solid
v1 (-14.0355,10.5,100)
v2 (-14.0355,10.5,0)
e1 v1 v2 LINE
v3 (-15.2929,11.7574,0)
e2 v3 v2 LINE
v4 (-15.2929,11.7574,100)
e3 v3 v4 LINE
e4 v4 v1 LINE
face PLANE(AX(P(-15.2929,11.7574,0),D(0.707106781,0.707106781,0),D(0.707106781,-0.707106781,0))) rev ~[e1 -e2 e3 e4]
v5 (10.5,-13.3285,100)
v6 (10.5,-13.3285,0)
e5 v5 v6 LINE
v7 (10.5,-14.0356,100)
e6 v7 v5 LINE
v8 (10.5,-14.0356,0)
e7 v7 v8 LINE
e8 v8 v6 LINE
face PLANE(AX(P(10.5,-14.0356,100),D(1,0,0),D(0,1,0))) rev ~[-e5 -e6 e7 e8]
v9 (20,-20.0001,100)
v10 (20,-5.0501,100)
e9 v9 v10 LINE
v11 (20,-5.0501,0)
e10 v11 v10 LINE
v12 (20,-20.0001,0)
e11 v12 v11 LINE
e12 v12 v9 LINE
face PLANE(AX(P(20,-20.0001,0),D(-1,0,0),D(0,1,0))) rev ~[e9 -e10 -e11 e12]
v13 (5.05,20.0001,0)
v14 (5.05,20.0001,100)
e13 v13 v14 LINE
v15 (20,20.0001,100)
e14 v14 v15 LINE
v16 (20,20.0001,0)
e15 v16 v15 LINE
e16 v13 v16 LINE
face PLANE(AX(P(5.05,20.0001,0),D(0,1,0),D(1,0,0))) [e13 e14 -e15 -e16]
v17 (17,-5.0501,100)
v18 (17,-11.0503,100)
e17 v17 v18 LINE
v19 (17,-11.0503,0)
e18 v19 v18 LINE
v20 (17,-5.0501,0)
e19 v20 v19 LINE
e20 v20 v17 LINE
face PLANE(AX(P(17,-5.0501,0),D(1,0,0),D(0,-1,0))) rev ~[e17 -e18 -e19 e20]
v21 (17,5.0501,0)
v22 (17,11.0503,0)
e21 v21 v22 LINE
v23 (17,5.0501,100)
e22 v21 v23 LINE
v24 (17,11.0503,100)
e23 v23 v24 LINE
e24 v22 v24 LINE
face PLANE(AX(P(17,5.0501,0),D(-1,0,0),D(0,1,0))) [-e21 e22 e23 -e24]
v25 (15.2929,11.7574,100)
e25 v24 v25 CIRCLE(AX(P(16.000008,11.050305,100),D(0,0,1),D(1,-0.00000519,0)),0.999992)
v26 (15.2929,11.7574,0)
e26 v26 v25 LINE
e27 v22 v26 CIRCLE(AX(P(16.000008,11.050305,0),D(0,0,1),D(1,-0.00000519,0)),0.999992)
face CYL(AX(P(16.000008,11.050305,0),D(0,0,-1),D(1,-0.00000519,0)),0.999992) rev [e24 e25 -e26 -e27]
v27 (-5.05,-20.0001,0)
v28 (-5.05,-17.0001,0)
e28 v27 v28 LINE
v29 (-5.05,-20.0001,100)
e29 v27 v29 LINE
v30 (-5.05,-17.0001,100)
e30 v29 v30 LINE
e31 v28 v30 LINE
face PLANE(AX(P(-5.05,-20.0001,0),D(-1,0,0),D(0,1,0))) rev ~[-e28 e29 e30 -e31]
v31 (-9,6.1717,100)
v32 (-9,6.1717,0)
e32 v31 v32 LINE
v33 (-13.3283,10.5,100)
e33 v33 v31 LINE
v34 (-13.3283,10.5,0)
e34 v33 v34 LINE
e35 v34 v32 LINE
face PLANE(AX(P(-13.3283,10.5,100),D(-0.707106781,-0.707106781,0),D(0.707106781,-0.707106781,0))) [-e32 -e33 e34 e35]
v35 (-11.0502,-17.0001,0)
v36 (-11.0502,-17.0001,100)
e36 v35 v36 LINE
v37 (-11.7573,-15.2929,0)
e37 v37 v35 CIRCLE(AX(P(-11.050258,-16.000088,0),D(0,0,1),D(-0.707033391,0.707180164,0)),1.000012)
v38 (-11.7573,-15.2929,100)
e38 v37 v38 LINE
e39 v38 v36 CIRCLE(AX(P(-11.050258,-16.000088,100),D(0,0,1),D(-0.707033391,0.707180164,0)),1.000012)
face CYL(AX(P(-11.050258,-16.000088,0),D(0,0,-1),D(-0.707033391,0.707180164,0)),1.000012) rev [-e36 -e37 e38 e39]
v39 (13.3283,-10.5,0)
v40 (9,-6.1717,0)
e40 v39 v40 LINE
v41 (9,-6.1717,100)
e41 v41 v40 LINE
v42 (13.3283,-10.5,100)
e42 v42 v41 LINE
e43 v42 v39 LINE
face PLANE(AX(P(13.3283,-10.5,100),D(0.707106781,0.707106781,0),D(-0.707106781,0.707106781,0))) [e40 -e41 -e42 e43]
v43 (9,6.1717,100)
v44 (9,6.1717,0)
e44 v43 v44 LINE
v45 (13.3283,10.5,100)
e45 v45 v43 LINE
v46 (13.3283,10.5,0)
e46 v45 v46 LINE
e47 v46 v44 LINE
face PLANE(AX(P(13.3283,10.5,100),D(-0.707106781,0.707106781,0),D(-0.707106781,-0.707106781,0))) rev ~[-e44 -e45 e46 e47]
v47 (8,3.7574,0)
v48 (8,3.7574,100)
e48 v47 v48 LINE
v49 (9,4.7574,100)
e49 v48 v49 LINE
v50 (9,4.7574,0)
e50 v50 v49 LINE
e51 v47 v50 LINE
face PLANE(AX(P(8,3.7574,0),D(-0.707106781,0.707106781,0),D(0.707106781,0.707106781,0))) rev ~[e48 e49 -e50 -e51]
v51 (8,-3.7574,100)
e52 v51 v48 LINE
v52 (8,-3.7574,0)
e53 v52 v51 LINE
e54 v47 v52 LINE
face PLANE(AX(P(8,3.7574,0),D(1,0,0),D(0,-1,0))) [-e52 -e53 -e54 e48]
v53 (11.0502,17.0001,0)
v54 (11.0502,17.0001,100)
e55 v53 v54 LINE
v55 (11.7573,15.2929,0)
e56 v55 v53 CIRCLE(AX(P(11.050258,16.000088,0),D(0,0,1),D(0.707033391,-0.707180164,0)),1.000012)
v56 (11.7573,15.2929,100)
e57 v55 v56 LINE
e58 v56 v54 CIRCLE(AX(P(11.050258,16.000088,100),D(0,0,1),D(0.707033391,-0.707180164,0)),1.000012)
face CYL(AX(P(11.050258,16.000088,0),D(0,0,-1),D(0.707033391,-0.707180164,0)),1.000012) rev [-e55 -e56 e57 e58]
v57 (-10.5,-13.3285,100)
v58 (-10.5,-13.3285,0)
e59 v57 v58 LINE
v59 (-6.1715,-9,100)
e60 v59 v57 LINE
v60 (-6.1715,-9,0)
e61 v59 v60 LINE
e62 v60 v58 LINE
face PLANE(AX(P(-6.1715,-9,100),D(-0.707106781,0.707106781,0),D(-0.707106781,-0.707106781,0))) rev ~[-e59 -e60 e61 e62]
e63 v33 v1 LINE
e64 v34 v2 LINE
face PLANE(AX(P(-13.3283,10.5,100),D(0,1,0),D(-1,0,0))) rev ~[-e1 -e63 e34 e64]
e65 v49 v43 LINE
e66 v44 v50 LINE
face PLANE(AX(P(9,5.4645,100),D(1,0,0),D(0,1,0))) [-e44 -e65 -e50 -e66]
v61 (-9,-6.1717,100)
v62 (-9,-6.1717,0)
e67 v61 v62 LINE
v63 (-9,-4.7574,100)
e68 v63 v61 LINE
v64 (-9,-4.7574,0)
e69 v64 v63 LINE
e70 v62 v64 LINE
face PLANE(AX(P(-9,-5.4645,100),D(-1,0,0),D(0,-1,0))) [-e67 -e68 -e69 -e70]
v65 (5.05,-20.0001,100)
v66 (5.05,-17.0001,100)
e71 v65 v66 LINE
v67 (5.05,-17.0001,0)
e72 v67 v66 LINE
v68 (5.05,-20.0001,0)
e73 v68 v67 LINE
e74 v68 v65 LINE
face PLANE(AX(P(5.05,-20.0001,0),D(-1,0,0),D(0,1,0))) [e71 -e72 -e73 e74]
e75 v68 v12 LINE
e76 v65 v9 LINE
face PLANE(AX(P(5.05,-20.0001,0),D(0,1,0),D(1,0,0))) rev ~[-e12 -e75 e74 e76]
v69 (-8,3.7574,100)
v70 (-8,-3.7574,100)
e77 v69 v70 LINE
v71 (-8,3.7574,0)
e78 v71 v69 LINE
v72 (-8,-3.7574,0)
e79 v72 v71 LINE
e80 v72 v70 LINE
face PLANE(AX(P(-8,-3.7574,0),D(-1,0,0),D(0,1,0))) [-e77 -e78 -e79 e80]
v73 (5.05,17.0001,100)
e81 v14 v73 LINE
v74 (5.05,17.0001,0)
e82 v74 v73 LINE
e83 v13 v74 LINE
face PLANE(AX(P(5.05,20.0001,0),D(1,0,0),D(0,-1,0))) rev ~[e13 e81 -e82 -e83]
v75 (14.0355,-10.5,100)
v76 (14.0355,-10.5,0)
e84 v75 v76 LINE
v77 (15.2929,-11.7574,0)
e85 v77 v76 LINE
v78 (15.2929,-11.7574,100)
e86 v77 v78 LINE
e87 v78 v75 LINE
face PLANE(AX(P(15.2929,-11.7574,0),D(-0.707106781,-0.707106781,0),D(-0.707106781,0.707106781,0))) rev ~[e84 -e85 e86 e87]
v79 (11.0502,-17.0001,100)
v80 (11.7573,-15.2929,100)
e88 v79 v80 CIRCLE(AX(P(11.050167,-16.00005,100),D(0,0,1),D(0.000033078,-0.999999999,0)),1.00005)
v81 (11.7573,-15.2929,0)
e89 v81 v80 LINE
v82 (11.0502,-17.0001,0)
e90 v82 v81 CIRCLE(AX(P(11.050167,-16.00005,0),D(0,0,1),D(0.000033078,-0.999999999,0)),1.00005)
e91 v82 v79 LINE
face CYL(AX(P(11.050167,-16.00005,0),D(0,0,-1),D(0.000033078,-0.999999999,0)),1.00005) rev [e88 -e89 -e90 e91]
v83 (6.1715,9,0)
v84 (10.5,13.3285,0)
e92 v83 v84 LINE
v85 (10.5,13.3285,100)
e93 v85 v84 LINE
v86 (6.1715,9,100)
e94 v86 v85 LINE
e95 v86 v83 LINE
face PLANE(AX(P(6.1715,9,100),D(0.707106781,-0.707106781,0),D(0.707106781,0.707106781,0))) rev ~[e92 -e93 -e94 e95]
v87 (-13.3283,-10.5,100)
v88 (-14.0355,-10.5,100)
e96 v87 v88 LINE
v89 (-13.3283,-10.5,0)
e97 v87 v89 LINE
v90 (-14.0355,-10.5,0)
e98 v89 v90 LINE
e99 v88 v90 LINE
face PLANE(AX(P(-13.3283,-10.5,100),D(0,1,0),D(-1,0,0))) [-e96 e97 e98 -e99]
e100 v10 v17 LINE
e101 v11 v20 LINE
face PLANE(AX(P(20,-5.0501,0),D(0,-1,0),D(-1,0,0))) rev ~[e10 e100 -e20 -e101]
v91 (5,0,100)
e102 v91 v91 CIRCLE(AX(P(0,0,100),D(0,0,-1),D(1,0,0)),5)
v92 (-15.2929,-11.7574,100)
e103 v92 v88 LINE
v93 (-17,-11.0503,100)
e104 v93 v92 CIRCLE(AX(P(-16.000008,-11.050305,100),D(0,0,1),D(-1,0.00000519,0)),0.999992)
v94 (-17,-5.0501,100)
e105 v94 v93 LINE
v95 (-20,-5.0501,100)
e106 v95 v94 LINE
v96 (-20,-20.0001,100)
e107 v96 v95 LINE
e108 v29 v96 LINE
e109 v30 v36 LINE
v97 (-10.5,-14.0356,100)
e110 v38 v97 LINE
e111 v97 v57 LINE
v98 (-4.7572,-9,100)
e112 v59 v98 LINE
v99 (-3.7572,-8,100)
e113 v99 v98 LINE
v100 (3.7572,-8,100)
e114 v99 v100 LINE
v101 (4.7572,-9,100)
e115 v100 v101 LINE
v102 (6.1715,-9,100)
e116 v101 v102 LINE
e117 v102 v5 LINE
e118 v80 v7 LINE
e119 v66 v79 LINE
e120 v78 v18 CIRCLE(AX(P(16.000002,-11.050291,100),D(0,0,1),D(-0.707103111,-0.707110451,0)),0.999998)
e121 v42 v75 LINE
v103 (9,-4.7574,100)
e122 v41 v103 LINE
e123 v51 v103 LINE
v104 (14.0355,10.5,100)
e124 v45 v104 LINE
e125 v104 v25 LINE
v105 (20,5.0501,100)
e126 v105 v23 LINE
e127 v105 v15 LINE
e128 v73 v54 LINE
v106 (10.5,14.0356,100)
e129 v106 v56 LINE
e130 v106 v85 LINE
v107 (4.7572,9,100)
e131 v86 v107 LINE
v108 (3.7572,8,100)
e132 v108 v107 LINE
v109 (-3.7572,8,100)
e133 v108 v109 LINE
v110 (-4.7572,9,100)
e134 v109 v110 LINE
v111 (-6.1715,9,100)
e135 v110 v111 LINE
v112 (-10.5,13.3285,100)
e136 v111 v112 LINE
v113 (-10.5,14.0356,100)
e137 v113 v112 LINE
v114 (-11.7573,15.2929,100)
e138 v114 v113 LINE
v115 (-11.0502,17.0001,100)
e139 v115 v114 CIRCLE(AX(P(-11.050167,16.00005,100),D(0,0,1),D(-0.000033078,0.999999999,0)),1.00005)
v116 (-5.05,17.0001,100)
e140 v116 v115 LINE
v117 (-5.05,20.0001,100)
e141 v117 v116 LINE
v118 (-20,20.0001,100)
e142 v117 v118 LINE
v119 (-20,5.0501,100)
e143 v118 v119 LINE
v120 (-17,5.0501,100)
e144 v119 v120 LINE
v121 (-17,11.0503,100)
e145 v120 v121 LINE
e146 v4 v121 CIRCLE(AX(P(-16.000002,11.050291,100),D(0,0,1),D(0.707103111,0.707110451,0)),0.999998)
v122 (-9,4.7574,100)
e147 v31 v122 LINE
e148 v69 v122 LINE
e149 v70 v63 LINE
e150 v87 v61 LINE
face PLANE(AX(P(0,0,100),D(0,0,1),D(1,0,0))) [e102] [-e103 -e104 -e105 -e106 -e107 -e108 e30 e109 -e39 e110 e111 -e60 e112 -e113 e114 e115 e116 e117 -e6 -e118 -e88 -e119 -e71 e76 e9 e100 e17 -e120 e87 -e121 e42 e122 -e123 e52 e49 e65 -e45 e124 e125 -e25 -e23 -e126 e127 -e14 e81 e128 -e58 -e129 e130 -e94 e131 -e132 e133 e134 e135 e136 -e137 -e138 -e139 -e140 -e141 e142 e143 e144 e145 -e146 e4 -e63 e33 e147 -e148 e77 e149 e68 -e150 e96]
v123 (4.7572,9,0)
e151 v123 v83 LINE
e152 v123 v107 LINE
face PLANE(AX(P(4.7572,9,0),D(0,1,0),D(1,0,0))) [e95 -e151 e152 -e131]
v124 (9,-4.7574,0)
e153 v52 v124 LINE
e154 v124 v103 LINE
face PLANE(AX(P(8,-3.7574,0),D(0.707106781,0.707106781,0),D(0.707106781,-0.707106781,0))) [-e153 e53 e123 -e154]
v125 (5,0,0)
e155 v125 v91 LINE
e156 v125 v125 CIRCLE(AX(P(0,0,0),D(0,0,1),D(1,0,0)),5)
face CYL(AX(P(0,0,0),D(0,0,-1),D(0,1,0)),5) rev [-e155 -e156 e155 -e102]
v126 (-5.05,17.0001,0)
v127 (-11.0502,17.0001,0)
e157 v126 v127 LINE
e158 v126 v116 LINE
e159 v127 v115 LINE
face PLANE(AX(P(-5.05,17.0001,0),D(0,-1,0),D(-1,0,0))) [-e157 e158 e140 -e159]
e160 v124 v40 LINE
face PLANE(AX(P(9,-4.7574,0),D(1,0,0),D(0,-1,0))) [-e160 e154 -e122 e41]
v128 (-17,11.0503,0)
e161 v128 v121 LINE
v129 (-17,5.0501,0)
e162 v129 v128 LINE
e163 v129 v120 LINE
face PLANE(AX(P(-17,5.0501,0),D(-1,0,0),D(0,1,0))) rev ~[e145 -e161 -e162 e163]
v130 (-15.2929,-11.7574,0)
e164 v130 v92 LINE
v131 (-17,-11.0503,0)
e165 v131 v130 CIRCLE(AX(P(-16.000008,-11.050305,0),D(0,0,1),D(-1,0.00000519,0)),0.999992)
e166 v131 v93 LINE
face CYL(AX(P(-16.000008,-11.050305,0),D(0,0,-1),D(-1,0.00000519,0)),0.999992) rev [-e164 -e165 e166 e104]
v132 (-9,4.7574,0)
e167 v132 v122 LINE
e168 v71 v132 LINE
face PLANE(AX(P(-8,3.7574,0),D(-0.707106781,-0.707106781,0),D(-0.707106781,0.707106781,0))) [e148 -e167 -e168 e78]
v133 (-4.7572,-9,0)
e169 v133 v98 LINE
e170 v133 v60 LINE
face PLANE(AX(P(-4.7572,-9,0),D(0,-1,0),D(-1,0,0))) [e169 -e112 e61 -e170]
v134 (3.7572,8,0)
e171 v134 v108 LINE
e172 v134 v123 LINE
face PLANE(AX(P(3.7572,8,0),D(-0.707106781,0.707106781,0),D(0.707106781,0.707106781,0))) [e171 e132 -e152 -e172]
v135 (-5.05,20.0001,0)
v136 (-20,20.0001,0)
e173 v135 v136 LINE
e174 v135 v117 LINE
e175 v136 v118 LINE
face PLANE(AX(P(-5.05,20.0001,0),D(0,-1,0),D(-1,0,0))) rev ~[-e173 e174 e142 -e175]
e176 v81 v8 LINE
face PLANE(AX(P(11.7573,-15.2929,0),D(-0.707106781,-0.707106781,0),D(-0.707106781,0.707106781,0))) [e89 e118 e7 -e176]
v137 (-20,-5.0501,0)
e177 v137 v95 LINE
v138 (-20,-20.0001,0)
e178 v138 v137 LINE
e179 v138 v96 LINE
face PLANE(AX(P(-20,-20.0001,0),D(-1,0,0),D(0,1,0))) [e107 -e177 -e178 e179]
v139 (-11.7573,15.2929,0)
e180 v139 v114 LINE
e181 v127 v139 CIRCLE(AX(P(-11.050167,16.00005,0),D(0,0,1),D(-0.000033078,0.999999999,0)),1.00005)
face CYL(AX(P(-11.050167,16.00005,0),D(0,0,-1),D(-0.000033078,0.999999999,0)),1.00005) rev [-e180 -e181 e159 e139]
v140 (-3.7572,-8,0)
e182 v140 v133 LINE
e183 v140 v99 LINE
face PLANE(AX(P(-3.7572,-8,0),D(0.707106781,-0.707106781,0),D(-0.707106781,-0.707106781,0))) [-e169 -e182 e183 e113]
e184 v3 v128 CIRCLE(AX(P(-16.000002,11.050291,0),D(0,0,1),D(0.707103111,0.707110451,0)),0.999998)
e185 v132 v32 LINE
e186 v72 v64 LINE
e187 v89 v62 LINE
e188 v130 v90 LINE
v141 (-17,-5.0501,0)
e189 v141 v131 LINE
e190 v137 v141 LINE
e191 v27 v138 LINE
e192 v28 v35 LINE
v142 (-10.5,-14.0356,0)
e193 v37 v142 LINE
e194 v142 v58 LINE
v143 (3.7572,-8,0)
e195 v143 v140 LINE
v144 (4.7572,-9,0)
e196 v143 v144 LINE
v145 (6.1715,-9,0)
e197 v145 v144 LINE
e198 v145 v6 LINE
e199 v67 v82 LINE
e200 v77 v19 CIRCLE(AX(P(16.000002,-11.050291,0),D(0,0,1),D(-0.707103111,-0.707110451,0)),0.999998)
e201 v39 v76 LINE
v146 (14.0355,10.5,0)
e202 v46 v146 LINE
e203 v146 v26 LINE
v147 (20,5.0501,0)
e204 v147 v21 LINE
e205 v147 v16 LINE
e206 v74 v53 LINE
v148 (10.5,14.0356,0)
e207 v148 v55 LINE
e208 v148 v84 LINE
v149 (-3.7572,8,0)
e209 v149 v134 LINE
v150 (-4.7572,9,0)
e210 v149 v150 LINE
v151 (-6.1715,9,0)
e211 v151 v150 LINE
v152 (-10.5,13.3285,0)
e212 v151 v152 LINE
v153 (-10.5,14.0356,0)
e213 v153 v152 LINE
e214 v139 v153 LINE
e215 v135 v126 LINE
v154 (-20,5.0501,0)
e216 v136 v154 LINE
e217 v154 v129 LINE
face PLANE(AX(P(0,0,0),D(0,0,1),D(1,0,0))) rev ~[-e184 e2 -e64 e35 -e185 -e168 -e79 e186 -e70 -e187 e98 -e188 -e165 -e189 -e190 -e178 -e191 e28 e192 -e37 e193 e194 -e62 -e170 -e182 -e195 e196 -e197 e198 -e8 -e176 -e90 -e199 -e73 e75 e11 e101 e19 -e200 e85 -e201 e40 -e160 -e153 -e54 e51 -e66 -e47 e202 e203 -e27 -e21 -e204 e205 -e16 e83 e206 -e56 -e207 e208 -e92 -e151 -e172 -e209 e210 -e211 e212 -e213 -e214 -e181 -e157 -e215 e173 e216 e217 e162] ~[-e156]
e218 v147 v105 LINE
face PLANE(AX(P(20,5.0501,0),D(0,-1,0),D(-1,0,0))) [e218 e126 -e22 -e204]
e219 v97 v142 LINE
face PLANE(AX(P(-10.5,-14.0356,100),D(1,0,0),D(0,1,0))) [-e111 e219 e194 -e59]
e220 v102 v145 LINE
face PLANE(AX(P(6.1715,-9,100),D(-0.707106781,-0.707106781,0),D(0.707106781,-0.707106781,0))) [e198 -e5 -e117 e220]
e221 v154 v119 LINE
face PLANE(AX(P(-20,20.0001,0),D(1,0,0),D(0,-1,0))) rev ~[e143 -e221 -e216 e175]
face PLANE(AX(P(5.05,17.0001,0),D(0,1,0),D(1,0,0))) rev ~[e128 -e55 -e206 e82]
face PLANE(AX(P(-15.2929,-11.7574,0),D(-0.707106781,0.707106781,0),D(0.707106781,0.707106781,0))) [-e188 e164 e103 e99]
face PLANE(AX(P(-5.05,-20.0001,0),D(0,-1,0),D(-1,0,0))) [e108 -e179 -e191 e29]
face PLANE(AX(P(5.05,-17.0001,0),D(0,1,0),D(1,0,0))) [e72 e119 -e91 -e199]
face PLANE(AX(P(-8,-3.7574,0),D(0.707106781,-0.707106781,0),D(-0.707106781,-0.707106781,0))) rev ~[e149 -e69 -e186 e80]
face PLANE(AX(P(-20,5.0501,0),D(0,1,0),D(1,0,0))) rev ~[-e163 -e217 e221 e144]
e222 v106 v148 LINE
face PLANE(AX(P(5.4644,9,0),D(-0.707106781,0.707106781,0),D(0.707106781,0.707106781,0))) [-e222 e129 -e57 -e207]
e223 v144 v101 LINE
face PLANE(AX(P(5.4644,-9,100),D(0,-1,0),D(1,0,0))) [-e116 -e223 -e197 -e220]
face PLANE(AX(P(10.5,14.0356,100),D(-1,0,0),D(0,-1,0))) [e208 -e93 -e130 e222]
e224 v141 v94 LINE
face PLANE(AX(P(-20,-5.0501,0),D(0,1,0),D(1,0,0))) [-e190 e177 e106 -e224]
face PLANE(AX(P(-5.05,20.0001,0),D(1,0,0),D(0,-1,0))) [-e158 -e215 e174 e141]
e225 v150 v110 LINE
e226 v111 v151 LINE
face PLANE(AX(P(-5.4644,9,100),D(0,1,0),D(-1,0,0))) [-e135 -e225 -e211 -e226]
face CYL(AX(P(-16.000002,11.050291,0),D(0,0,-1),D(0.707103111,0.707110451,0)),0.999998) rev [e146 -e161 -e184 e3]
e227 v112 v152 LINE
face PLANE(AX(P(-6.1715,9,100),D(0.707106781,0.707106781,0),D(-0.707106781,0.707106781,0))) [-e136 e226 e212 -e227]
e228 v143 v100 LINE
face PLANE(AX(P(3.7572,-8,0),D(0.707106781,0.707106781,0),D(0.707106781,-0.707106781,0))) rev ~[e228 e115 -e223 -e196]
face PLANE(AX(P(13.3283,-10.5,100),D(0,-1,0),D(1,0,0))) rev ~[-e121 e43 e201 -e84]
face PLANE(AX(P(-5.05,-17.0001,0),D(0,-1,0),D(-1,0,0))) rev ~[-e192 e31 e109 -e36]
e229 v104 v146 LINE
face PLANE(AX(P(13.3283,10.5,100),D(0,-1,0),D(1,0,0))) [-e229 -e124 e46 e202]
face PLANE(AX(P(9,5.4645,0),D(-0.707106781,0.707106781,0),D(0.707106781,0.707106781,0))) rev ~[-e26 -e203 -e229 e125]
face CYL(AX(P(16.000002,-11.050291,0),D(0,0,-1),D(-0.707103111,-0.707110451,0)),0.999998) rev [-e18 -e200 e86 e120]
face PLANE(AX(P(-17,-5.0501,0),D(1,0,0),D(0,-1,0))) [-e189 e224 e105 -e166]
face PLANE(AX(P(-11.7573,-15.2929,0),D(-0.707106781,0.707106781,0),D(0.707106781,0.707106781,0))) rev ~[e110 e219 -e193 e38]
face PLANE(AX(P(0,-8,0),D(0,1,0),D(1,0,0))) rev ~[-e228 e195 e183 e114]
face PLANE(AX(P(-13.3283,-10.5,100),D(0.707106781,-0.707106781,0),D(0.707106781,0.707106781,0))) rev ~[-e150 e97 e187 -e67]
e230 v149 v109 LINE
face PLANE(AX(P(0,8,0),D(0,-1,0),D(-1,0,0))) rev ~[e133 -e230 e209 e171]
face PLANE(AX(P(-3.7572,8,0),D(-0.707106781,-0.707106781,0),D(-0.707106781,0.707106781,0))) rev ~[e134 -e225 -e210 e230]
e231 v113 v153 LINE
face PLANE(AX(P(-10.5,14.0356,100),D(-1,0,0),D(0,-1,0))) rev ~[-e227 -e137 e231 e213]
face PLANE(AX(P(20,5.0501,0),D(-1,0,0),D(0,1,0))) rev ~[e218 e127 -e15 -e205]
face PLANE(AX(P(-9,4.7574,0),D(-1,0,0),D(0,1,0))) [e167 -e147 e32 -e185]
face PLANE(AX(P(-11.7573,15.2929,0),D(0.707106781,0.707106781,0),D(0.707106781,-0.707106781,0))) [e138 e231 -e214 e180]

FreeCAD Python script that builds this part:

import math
import FreeCAD as App
import Part
import Sketcher
from FreeCAD import Vector
Q = App.Units.Quantity

doc = App.newDocument("Part")
body = doc.addObject("PartDesign::Body", "Body")

# Sketch on XY plane
sketch1 = body.newObject("Sketcher::SketchObject", "Sketch")
sketch1.AttachmentSupport = (doc.getObject("XY_Plane"), [""])
sketch1.MapMode = "FlatFace"
sketch1.addGeometry([
    Part.LineSegment(Vector(-5, 17, 0), Vector(-5, 20, 0)),  # 0
    Part.LineSegment(Vector(-5, 20, 0), Vector(-20, 20, 0)),  # 1
    Part.LineSegment(Vector(-20, 20, 0), Vector(-20, 5.1, 0)),  # 2
    Part.LineSegment(Vector(-20, 5.1, 0), Vector(-17, 5.1, 0)),  # 3
    Part.LineSegment(Vector(-17, 5.1, 0), Vector(-17, 11.1, 0)),  # 4
    Part.ArcOfCircle(Part.Circle(Vector(-16, 11.1, 0), Vector(0, 0, 1), 1), math.radians(45), math.radians(180)),  # 5
    Part.LineSegment(Vector(-15.3, 11.8, 0), Vector(-9, 5.5, 0)),  # 6
    Part.LineSegment(Vector(-9, 5.5, 0), Vector(-9, 4.8, 0)),  # 7
    Part.LineSegment(Vector(-9, 4.8, 0), Vector(-8, 3.8, 0)),  # 8
    Part.LineSegment(Vector(-8, 3.8, 0), Vector(-8, -3.8, 0)),  # 9
    Part.LineSegment(Vector(-8, -3.8, 0), Vector(-9, -4.8, 0)),  # 10
    Part.LineSegment(Vector(-9, -4.8, 0), Vector(-9, -5.5, 0)),  # 11
    Part.LineSegment(Vector(-9, -5.5, 0), Vector(-15.3, -11.8, 0)),  # 12
    Part.ArcOfCircle(Part.Circle(Vector(-16, -11.1, 0), Vector(0, 0, 1), 1), math.radians(180), math.radians(315)),  # 13
    Part.LineSegment(Vector(-17, -11.1, 0), Vector(-17, -5.1, 0)),  # 14
    Part.LineSegment(Vector(-17, -5.1, 0), Vector(-20, -5.1, 0)),  # 15
    Part.LineSegment(Vector(-20, -5.1, 0), Vector(-20, -20, 0)),  # 16
    Part.LineSegment(Vector(-20, -20, 0), Vector(-5, -20, 0)),  # 17
    Part.LineSegment(Vector(-5, -20, 0), Vector(-5, -17, 0)),  # 18
    Part.LineSegment(Vector(-5, -17, 0), Vector(-11.1, -17, 0)),  # 19
    Part.ArcOfCircle(Part.Circle(Vector(-11.1, -16, 0), Vector(0, 0, 1), 1), math.radians(135), math.radians(270)),  # 20
    Part.LineSegment(Vector(-11.8, -15.3, 0), Vector(-5.5, -9, 0)),  # 21
    Part.LineSegment(Vector(-5.5, -9, 0), Vector(-4.8, -9, 0)),  # 22
    Part.LineSegment(Vector(-4.8, -9, 0), Vector(-3.8, -8, 0)),  # 23
    Part.LineSegment(Vector(-3.8, -8, 0), Vector(3.8, -8, 0)),  # 24
    Part.LineSegment(Vector(3.8, -8, 0), Vector(4.8, -9, 0)),  # 25
    Part.LineSegment(Vector(4.8, -9, 0), Vector(5.5, -9, 0)),  # 26
    Part.LineSegment(Vector(5.5, -9, 0), Vector(11.8, -15.3, 0)),  # 27
    Part.ArcOfCircle(Part.Circle(Vector(11.1, -16, 0), Vector(0, 0, 1), 1), math.radians(-90), math.radians(45)),  # 28
    Part.LineSegment(Vector(11.1, -17, 0), Vector(5, -17, 0)),  # 29
    Part.LineSegment(Vector(5, -17, 0), Vector(5, -20, 0)),  # 30
    Part.LineSegment(Vector(5, -20, 0), Vector(20, -20, 0)),  # 31
    Part.LineSegment(Vector(20, -20, 0), Vector(20, -5.1, 0)),  # 32
    Part.LineSegment(Vector(20, -5.1, 0), Vector(17, -5.1, 0)),  # 33
    Part.LineSegment(Vector(17, -5.1, 0), Vector(17, -11.1, 0)),  # 34
    Part.ArcOfCircle(Part.Circle(Vector(16, -11.1, 0), Vector(0, 0, 1), 1), math.radians(-135), math.radians(0)),  # 35
    Part.LineSegment(Vector(15.3, -11.8, 0), Vector(9, -5.5, 0)),  # 36
    Part.LineSegment(Vector(9, -5.5, 0), Vector(9, -4.8, 0)),  # 37
    Part.LineSegment(Vector(9, -4.8, 0), Vector(8, -3.8, 0)),  # 38
    Part.LineSegment(Vector(8, -3.8, 0), Vector(8, 3.8, 0)),  # 39
    Part.LineSegment(Vector(8, 3.8, 0), Vector(9, 4.8, 0)),  # 40
    Part.LineSegment(Vector(9, 4.8, 0), Vector(9, 5.5, 0)),  # 41
    Part.LineSegment(Vector(9, 5.5, 0), Vector(15.3, 11.8, 0)),  # 42
    Part.ArcOfCircle(Part.Circle(Vector(16, 11.1, 0), Vector(0, 0, 1), 1), math.radians(0), math.radians(135)),  # 43
    Part.LineSegment(Vector(17, 11.1, 0), Vector(17, 5.1, 0)),  # 44
    Part.LineSegment(Vector(17, 5.1, 0), Vector(20, 5.1, 0)),  # 45
    Part.LineSegment(Vector(20, 5.1, 0), Vector(20, 20, 0)),  # 46
    Part.LineSegment(Vector(20, 20, 0), Vector(5, 20, 0)),  # 47
    Part.LineSegment(Vector(5, 20, 0), Vector(5, 17, 0)),  # 48
    Part.LineSegment(Vector(5, 17, 0), Vector(11.1, 17, 0)),  # 49
    Part.ArcOfCircle(Part.Circle(Vector(11.1, 16, 0), Vector(0, 0, 1), 1), math.radians(-45), math.radians(90)),  # 50
    Part.LineSegment(Vector(11.8, 15.3, 0), Vector(5.5, 9, 0)),  # 51
    Part.LineSegment(Vector(5.5, 9, 0), Vector(4.8, 9, 0)),  # 52
    Part.LineSegment(Vector(4.8, 9, 0), Vector(3.8, 8, 0)),  # 53
    Part.LineSegment(Vector(3.8, 8, 0), Vector(-3.8, 8, 0)),  # 54
    Part.LineSegment(Vector(-3.8, 8, 0), Vector(-4.8, 9, 0)),  # 55
    Part.LineSegment(Vector(-4.8, 9, 0), Vector(-5.5, 9, 0)),  # 56
    Part.LineSegment(Vector(-5.5, 9, 0), Vector(-11.8, 15.3, 0)),  # 57
    Part.ArcOfCircle(Part.Circle(Vector(-11.1, 16, 0), Vector(0, 0, 1), 1), math.radians(90), math.radians(225)),  # 58
    Part.LineSegment(Vector(-11.1, 17, 0), Vector(-5, 17, 0)),  # 59
    Part.Circle(Vector(0, 0, 0), Vector(0, 0, 1), 5),  # 60
], False)
sketch1.addConstraint([
    Sketcher.Constraint("Coincident", 0, 2, 1, 1),
    Sketcher.Constraint("Coincident", 1, 2, 2, 1),
    Sketcher.Constraint("Coincident", 2, 2, 3, 1),
    Sketcher.Constraint("Coincident", 3, 2, 4, 1),
    Sketcher.Constraint("Tangent", 4, 2, 5, 2),
    Sketcher.Constraint("Tangent", 5, 1, 6, 1),
    Sketcher.Constraint("Coincident", 6, 2, 7, 1),
    Sketcher.Constraint("Coincident", 7, 2, 8, 1),
    Sketcher.Constraint("Coincident", 8, 2, 9, 1),
    Sketcher.Constraint("Coincident", 9, 2, 10, 1),
    Sketcher.Constraint("Coincident", 10, 2, 11, 1),
    Sketcher.Constraint("Coincident", 11, 2, 12, 1),
    Sketcher.Constraint("Tangent", 12, 2, 13, 2),
    Sketcher.Constraint("Tangent", 13, 1, 14, 1),
    Sketcher.Constraint("Coincident", 14, 2, 15, 1),
    Sketcher.Constraint("Coincident", 15, 2, 16, 1),
    Sketcher.Constraint("Coincident", 16, 2, 17, 1),
    Sketcher.Constraint("Coincident", 17, 2, 18, 1),
    Sketcher.Constraint("Coincident", 18, 2, 19, 1),
    Sketcher.Constraint("Tangent", 19, 2, 20, 2),
    Sketcher.Constraint("Tangent", 20, 1, 21, 1),
    Sketcher.Constraint("Coincident", 21, 2, 22, 1),
    Sketcher.Constraint("Coincident", 22, 2, 23, 1),
    Sketcher.Constraint("Coincident", 23, 2, 24, 1),
    Sketcher.Constraint("Coincident", 24, 2, 25, 1),
    Sketcher.Constraint("Coincident", 25, 2, 26, 1),
    Sketcher.Constraint("Coincident", 26, 2, 27, 1),
    Sketcher.Constraint("Tangent", 27, 2, 28, 2),
    Sketcher.Constraint("Tangent", 28, 1, 29, 1),
    Sketcher.Constraint("Coincident", 29, 2, 30, 1),
    Sketcher.Constraint("Coincident", 30, 2, 31, 1),
    Sketcher.Constraint("Coincident", 31, 2, 32, 1),
    Sketcher.Constraint("Coincident", 32, 2, 33, 1),
    Sketcher.Constraint("Coincident", 33, 2, 34, 1),
    Sketcher.Constraint("Tangent", 34, 2, 35, 2),
    Sketcher.Constraint("Tangent", 35, 1, 36, 1),
    Sketcher.Constraint("Coincident", 36, 2, 37, 1),
    Sketcher.Constraint("Coincident", 37, 2, 38, 1),
    Sketcher.Constraint("Coincident", 38, 2, 39, 1),
    Sketcher.Constraint("Coincident", 39, 2, 40, 1),
    Sketcher.Constraint("Coincident", 40, 2, 41, 1),
    Sketcher.Constraint("Coincident", 41, 2, 42, 1),
    Sketcher.Constraint("Tangent", 42, 2, 43, 2),
    Sketcher.Constraint("Tangent", 43, 1, 44, 1),
    Sketcher.Constraint("Coincident", 44, 2, 45, 1),
    Sketcher.Constraint("Coincident", 45, 2, 46, 1),
    Sketcher.Constraint("Coincident", 46, 2, 47, 1),
    Sketcher.Constraint("Coincident", 47, 2, 48, 1),
    Sketcher.Constraint("Coincident", 48, 2, 49, 1),
    Sketcher.Constraint("Tangent", 49, 2, 50, 2),
    Sketcher.Constraint("Tangent", 50, 1, 51, 1),
    Sketcher.Constraint("Coincident", 51, 2, 52, 1),
    Sketcher.Constraint("Coincident", 52, 2, 53, 1),
    Sketcher.Constraint("Coincident", 53, 2, 54, 1),
    Sketcher.Constraint("Coincident", 54, 2, 55, 1),
    Sketcher.Constraint("Coincident", 55, 2, 56, 1),
    Sketcher.Constraint("Coincident", 56, 2, 57, 1),
    Sketcher.Constraint("Tangent", 57, 2, 58, 2),
    Sketcher.Constraint("Tangent", 58, 1, 59, 1),
    Sketcher.Constraint("Coincident", 59, 2, 0, 1),
    Sketcher.Constraint("Vertical", 0),
    Sketcher.Constraint("Horizontal", 1),
    Sketcher.Constraint("Vertical", 2),
    Sketcher.Constraint("Horizontal", 3),
    Sketcher.Constraint("Vertical", 4),
    Sketcher.Constraint("Vertical", 7),
    Sketcher.Constraint("Vertical", 9),
    Sketcher.Constraint("Vertical", 11),
    Sketcher.Constraint("Vertical", 14),
    Sketcher.Constraint("Horizontal", 15),
    Sketcher.Constraint("Vertical", 16),
    Sketcher.Constraint("Horizontal", 17),
    Sketcher.Constraint("Vertical", 18),
    Sketcher.Constraint("Horizontal", 19),
    Sketcher.Constraint("Horizontal", 22),
    Sketcher.Constraint("Horizontal", 24),
    Sketcher.Constraint("Horizontal", 26),
    Sketcher.Constraint("Horizontal", 29),
    Sketcher.Constraint("Vertical", 30),
    Sketcher.Constraint("Horizontal", 31),
    Sketcher.Constraint("Vertical", 32),
    Sketcher.Constraint("Horizontal", 33),
    Sketcher.Constraint("Vertical", 34),
    Sketcher.Constraint("Vertical", 37),
    Sketcher.Constraint("Vertical", 39),
    Sketcher.Constraint("Vertical", 41),
    Sketcher.Constraint("Vertical", 44),
    Sketcher.Constraint("Horizontal", 45),
    Sketcher.Constraint("Vertical", 46),
    Sketcher.Constraint("Horizontal", 47),
    Sketcher.Constraint("Vertical", 48),
    Sketcher.Constraint("Horizontal", 49),
    Sketcher.Constraint("Horizontal", 52),
    Sketcher.Constraint("Horizontal", 54),
    Sketcher.Constraint("Horizontal", 56),
    Sketcher.Constraint("Horizontal", 59),
    Sketcher.Constraint("Coincident", 60, 3, -1, 1),
    Sketcher.Constraint("Equal", 5, 13),
    Sketcher.Constraint("Equal", 13, 20),
    Sketcher.Constraint("Equal", 20, 28),
    Sketcher.Constraint("Equal", 28, 35),
    Sketcher.Constraint("Equal", 35, 43),
    Sketcher.Constraint("Equal", 43, 50),
    Sketcher.Constraint("Equal", 50, 58),
    Sketcher.Constraint("Symmetric", 5, 3, 35, 3, -1, 1),
    Sketcher.Constraint("Symmetric", 13, 3, 43, 3, -1, 1),
    Sketcher.Constraint("Symmetric", 20, 3, 50, 3, -1, 1),
    Sketcher.Constraint("Symmetric", 28, 3, 58, 3, -1, 1),
    Sketcher.Constraint("Symmetric", 0, 2, 30, 2, -1, 1),
    Sketcher.Constraint("Symmetric", 2, 2, 32, 2, -1, 1),
    Sketcher.Constraint("Symmetric", 6, 2, 36, 2, -1, 1),
    Sketcher.Constraint("Symmetric", 8, 2, 38, 2, -1, 1),
    Sketcher.Constraint("Symmetric", 10, 2, 40, 2, -1, 1),
    Sketcher.Constraint("Symmetric", 15, 2, 45, 2, -1, 1),
    Sketcher.Constraint("Symmetric", 17, 2, 47, 2, -1, 1),
    Sketcher.Constraint("Symmetric", 21, 2, 51, 2, -1, 1),
    Sketcher.Constraint("Symmetric", 23, 2, 53, 2, -1, 1),
    Sketcher.Constraint("Symmetric", 25, 2, 55, 2, -1, 1),
    Sketcher.Constraint("Symmetric", 20, 3, 28, 3, -2),
    Sketcher.Constraint("Symmetric", 13, 3, 35, 3, -2),
    Sketcher.Constraint("Symmetric", 22, 2, 25, 2, -2),
    Sketcher.Constraint("Symmetric", 17, 2, 30, 2, -2),
    Sketcher.Constraint("Symmetric", 15, 2, 32, 2, -2),
    Sketcher.Constraint("Symmetric", 11, 2, 36, 2, -2),
    Sketcher.Constraint("Parallel", 6, 8),
    Sketcher.Constraint("Perpendicular", 8, 10),
    Sketcher.Constraint("Parallel", 10, 12),
    Sketcher.Constraint("Parallel", 12, 21),
    Sketcher.Constraint("Parallel", 21, 23),
    Sketcher.Constraint("Perpendicular", 23, 25),
    Sketcher.Constraint("Parallel", 25, 27),
    Sketcher.Constraint("Parallel", 36, 38),
    Sketcher.Constraint("Perpendicular", 38, 40),
    Sketcher.Constraint("Parallel", 40, 42),
    Sketcher.Constraint("Parallel", 51, 53),
    Sketcher.Constraint("Perpendicular", 53, 55),
    Sketcher.Constraint("Parallel", 55, 57),
    Sketcher.Constraint("Horizontal", 10, 2, 37, 2),
    Sketcher.Constraint("Equal", 45, 0),
    Sketcher.Constraint("Equal", 47, 2),
    Sketcher.Constraint("Equal", 59, 4),
    Sketcher.Constraint("Equal", 56, 7),
    Sketcher.Constraint("Equal", 12, 21),
    Sketcher.Constraint("Equal", 10, 23),
    Sketcher.Constraint("Diameter", 60, Q("10 mm")),
    Sketcher.Constraint("Radius", 5, Q("1 mm")),
    Sketcher.Constraint("DistanceX", 3, 1, 3, 2, Q("3 mm")),
    Sketcher.Constraint("DistanceY", -1, 1, 0, 2, Q("20 mm")),
    Sketcher.Constraint("DistanceX", 1, 2, -1, 1, Q("20 mm")),
    Sketcher.Constraint("DistanceX", 8, 2, -1, 1, Q("8 mm")),
    Sketcher.Constraint("DistanceX", 1, 2, 1, 1, Q("14.95 mm")),
    Sketcher.Constraint("DistanceX", 6, 2, -1, 1, Q("9 mm")),
    Sketcher.Constraint("DistanceY", 7, 2, 7, 1, Q("0.707 mm")),
    Sketcher.Constraint("DistanceX", 19, 2, 19, 1, Q("6.0002 mm")),
])
pad1 = body.newObject("PartDesign::Pad", "Pad")
pad1.Profile = sketch1
pad1.Length = 100

# Sketch on XY plane
sketch2 = body.newObject("Sketcher::SketchObject", "Sketch001")
sketch2.AttachmentSupport = (doc.getObject("XY_Plane"), [""])
sketch2.MapMode = "FlatFace"
sketch2.AttachmentOffset = App.Placement(Vector(0, 0, 100), App.Rotation())
sketch2.addGeometry([
    Part.LineSegment(Vector(-14, 10.5, 0), Vector(-9, 5.5, 0)),  # 0
    Part.LineSegment(Vector(-9, 5.5, 0), Vector(-9, 6.2, 0)),  # 1
    Part.LineSegment(Vector(-9, 6.2, 0), Vector(-13.3, 10.5, 0)),  # 2
    Part.LineSegment(Vector(-13.3, 10.5, 0), Vector(-14, 10.5, 0)),  # 3
    Part.LineSegment(Vector(-5.5, 9, 0), Vector(-10.5, 14, 0)),  # 4
    Part.LineSegment(Vector(-10.5, 14, 0), Vector(-10.5, 13.3, 0)),  # 5
    Part.LineSegment(Vector(-10.5, 13.3, 0), Vector(-6.2, 9, 0)),  # 6
    Part.LineSegment(Vector(-6.2, 9, 0), Vector(-5.5, 9, 0)),  # 7
    Part.LineSegment(Vector(-14, -10.5, 0), Vector(-13.3, -10.5, 0)),  # 8
    Part.LineSegment(Vector(-13.3, -10.5, 0), Vector(-9, -6.2, 0)),  # 9
    Part.LineSegment(Vector(-9, -6.2, 0), Vector(-9, -5.5, 0)),  # 10
    Part.LineSegment(Vector(-9, -5.5, 0), Vector(-14, -10.5, 0)),  # 11
    Part.LineSegment(Vector(-5.5, -9, 0), Vector(-6.2, -9, 0)),  # 12
    Part.LineSegment(Vector(-6.2, -9, 0), Vector(-10.5, -13.3, 0)),  # 13
    Part.LineSegment(Vector(-10.5, -13.3, 0), Vector(-10.5, -14, 0)),  # 14
    Part.LineSegment(Vector(-10.5, -14, 0), Vector(-5.5, -9, 0)),  # 15
    Part.LineSegment(Vector(14, 10.5, 0), Vector(13.3, 10.5, 0)),  # 16
    Part.LineSegment(Vector(13.3, 10.5, 0), Vector(9, 6.2, 0)),  # 17
    Part.LineSegment(Vector(9, 6.2, 0), Vector(9, 5.5, 0)),  # 18
    Part.LineSegment(Vector(9, 5.5, 0), Vector(14, 10.5, 0)),  # 19
    Part.LineSegment(Vector(5.5, 9, 0), Vector(6.2, 9, 0)),  # 20
    Part.LineSegment(Vector(6.2, 9, 0), Vector(10.5, 13.3, 0)),  # 21
    Part.LineSegment(Vector(10.5, 13.3, 0), Vector(10.5, 14, 0)),  # 22
    Part.LineSegment(Vector(10.5, 14, 0), Vector(5.5, 9, 0)),  # 23
    Part.LineSegment(Vector(9, -6.2, 0), Vector(13.3, -10.5, 0)),  # 24
    Part.LineSegment(Vector(13.3, -10.5, 0), Vector(14, -10.5, 0)),  # 25
    Part.LineSegment(Vector(14, -10.5, 0), Vector(9, -5.5, 0)),  # 26
    Part.LineSegment(Vector(9, -5.5, 0), Vector(9, -6.2, 0)),  # 27
    Part.LineSegment(Vector(6.2, -9, 0), Vector(5.5, -9, 0)),  # 28
    Part.LineSegment(Vector(5.5, -9, 0), Vector(10.5, -14, 0)),  # 29
    Part.LineSegment(Vector(10.5, -14, 0), Vector(10.5, -13.3, 0)),  # 30
    Part.LineSegment(Vector(10.5, -13.3, 0), Vector(6.2, -9, 0)),  # 31
], False)
sketch2.addConstraint([
    Sketcher.Constraint("Coincident", 0, 2, 1, 1),
    Sketcher.Constraint("Coincident", 1, 2, 2, 1),
    Sketcher.Constraint("Coincident", 2, 2, 3, 1),
    Sketcher.Constraint("Coincident", 3, 2, 0, 1),
    Sketcher.Constraint("Coincident", 4, 2, 5, 1),
    Sketcher.Constraint("Coincident", 5, 2, 6, 1),
    Sketcher.Constraint("Coincident", 6, 2, 7, 1),
    Sketcher.Constraint("Coincident", 7, 2, 4, 1),
    Sketcher.Constraint("Coincident", 8, 2, 9, 1),
    Sketcher.Constraint("Coincident", 9, 2, 10, 1),
    Sketcher.Constraint("Coincident", 10, 2, 11, 1),
    Sketcher.Constraint("Coincident", 11, 2, 8, 1),
    Sketcher.Constraint("Coincident", 12, 2, 13, 1),
    Sketcher.Constraint("Coincident", 13, 2, 14, 1),
    Sketcher.Constraint("Coincident", 14, 2, 15, 1),
    Sketcher.Constraint("Coincident", 15, 2, 12, 1),
    Sketcher.Constraint("Coincident", 16, 2, 17, 1),
    Sketcher.Constraint("Coincident", 17, 2, 18, 1),
    Sketcher.Constraint("Coincident", 18, 2, 19, 1),
    Sketcher.Constraint("Coincident", 19, 2, 16, 1),
    Sketcher.Constraint("Coincident", 20, 2, 21, 1),
    Sketcher.Constraint("Coincident", 21, 2, 22, 1),
    Sketcher.Constraint("Coincident", 22, 2, 23, 1),
    Sketcher.Constraint("Coincident", 23, 2, 20, 1),
    Sketcher.Constraint("Coincident", 24, 2, 25, 1),
    Sketcher.Constraint("Coincident", 25, 2, 26, 1),
    Sketcher.Constraint("Coincident", 26, 2, 27, 1),
    Sketcher.Constraint("Coincident", 27, 2, 24, 1),
    Sketcher.Constraint("Coincident", 28, 2, 29, 1),
    Sketcher.Constraint("Coincident", 29, 2, 30, 1),
    Sketcher.Constraint("Coincident", 30, 2, 31, 1),
    Sketcher.Constraint("Coincident", 31, 2, 28, 1),
    Sketcher.Constraint("Vertical", 1),
    Sketcher.Constraint("Horizontal", 3),
    Sketcher.Constraint("Vertical", 5),
    Sketcher.Constraint("Horizontal", 7),
    Sketcher.Constraint("Horizontal", 8),
    Sketcher.Constraint("Vertical", 10),
    Sketcher.Constraint("Horizontal", 12),
    Sketcher.Constraint("Vertical", 14),
    Sketcher.Constraint("Horizontal", 16),
    Sketcher.Constraint("Vertical", 18),
    Sketcher.Constraint("Horizontal", 20),
    Sketcher.Constraint("Vertical", 22),
    Sketcher.Constraint("Horizontal", 25),
    Sketcher.Constraint("Vertical", 27),
    Sketcher.Constraint("Horizontal", 28),
    Sketcher.Constraint("Vertical", 30),
    Sketcher.Constraint("Symmetric", 8, 2, 16, 2, -1, 1),
    Sketcher.Constraint("Symmetric", 9, 2, 17, 2, -1, 1),
    Sketcher.Constraint("Symmetric", 12, 2, 20, 2, -1, 1),
    Sketcher.Constraint("Symmetric", 13, 2, 21, 2, -1, 1),
    Sketcher.Constraint("Symmetric", 2, 2, 24, 2, -1, 1),
    Sketcher.Constraint("Symmetric", 0, 2, 26, 2, -1, 1),
    Sketcher.Constraint("Symmetric", 7, 2, 28, 2, -1, 1),
    Sketcher.Constraint("Symmetric", 4, 2, 29, 2, -1, 1),
    Sketcher.Constraint("Symmetric", 2, 2, 16, 2, -2),
    Sketcher.Constraint("Symmetric", 1, 2, 17, 2, -2),
    Sketcher.Constraint("Symmetric", 6, 2, 20, 2, -2),
    Sketcher.Constraint("Symmetric", 5, 2, 21, 2, -2),
    Sketcher.Constraint("Parallel", 0, 2),
    Sketcher.Constraint("Parallel", 2, 4),
    Sketcher.Constraint("Parallel", 4, 6),
    Sketcher.Constraint("Perpendicular", 6, 9),
    Sketcher.Constraint("Parallel", 9, 11),
    Sketcher.Constraint("Parallel", 13, 15),
    Sketcher.Constraint("Parallel", 17, 19),
    Sketcher.Constraint("Parallel", 21, 23),
    Sketcher.Constraint("Perpendicular", 23, 24),
    Sketcher.Constraint("Parallel", 24, 26),
    Sketcher.Constraint("Parallel", 29, 31),
    Sketcher.Constraint("Horizontal", 0, 2, 18, 2),
    Sketcher.Constraint("Horizontal", 4, 2, 22, 2),
    Sketcher.Constraint("Horizontal", 10, 2, 26, 2),
    Sketcher.Constraint("Horizontal", 14, 2, 29, 2),
    Sketcher.Constraint("Horizontal", 13, 2, 30, 2),
    Sketcher.Constraint("Equal", 3, 7),
    Sketcher.Constraint("Equal", 0, 4),
    Sketcher.Constraint("DistanceY", -1, 1, 2, 2, Q("10.5 mm")),
    Sketcher.Constraint("DistanceX", 4, 2, -1, 1, Q("10.5 mm")),
    Sketcher.Constraint("DistanceX", 0, 2, -1, 1, Q("9 mm")),
    Sketcher.Constraint("DistanceY", -1, 1, 6, 2, Q("9 mm")),
    Sketcher.Constraint("DistanceX", 7, 1, 7, 2, Q("0.707 mm")),
    Sketcher.Constraint("DistanceY", 1, 2, 4, 2, Q("7.864 mm")),
])
pocket1 = body.newObject("PartDesign::Pocket", "Pocket")
pocket1.Profile = sketch2
pocket1.Type = "ThroughAll"

doc.recompute()
